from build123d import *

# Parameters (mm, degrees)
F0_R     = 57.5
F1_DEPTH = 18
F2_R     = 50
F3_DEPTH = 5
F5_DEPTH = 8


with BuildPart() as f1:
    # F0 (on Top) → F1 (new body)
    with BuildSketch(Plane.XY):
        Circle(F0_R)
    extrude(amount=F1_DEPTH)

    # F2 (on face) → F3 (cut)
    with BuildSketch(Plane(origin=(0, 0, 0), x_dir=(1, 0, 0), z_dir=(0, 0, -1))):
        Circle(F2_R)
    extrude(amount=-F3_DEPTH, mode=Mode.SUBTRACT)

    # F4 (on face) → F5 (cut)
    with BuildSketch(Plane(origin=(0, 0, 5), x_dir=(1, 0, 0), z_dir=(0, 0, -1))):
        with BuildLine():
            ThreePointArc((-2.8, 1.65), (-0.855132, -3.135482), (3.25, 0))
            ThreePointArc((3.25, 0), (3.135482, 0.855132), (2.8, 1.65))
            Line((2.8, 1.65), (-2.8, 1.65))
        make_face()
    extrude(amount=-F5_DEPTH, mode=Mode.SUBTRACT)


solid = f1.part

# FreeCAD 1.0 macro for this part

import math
import FreeCAD as App
import Part
import Sketcher

V = App.Vector

doc = App.newDocument("Part")
body = doc.addObject("PartDesign::Body", "Body")

# Sketch on XY plane
sketch1 = doc.addObject("Sketcher::SketchObject", "Sketch")
body.addObject(sketch1)
sketch1.AttachmentSupport = (doc.XY_Plane, [""])
sketch1.MapMode = "FlatFace"
sketch1.addGeometry(Part.Circle(V(0, 0, 0), V(0, 0, 1), 58), False)
sketch1.addConstraint(Sketcher.Constraint("Coincident", 0, 3, -1, 1))
sketch1.addConstraint(Sketcher.Constraint("Diameter", 0, 115.0))
pad1 = doc.addObject("PartDesign::Pad", "Pad")
body.addObject(pad1)
pad1.Profile = sketch1
pad1.Length = 18

# Sketch on XY plane
sketch2 = doc.addObject("Sketcher::SketchObject", "Sketch001")
body.addObject(sketch2)
sketch2.AttachmentSupport = (doc.XY_Plane, [""])
sketch2.MapMode = "FlatFace"
sketch2.addGeometry(Part.Circle(V(0, 0, 0), V(0, 0, 1), 50), False)
sketch2.addConstraint(Sketcher.Constraint("Coincident", 0, 3, -1, 1))
sketch2.addConstraint(Sketcher.Constraint("Diameter", 0, 100.0))
pocket1 = doc.addObject("PartDesign::Pocket", "Pocket")
body.addObject(pocket1)
pocket1.Profile = sketch2
pocket1.Length = 5
pocket1.Reversed = True

# Sketch on XY plane
sketch3 = doc.addObject("Sketcher::SketchObject", "Sketch002")
body.addObject(sketch3)
sketch3.AttachmentSupport = (doc.XY_Plane, [""])
sketch3.MapMode = "FlatFace"
sketch3.AttachmentOffset = App.Placement(V(0, 0, 5), App.Rotation())
sketch3.addGeometry(Part.ArcOfCircle(Part.Circle(V(0, 0, 0), V(0, 0, 1), 3.2), math.radians(0), math.radians(211)), False)
sketch3.addGeometry(Part.ArcOfCircle(Part.Circle(V(0, 0, 0), V(0, 0, 1), 3.3), math.radians(-31), math.radians(0)), False)
sketch3.addGeometry(Part.LineSegment(V(2.8, -1.6, 0), V(-2.8, -1.6, 0)), False)
sketch3.addConstraint(Sketcher.Constraint("Tangent", 0, 1, 1, 2))
sketch3.addConstraint(Sketcher.Constraint("Coincident", 1, 1, 2, 1))
sketch3.addConstraint(Sketcher.Constraint("Coincident", 2, 2, 0, 2))
sketch3.addConstraint(Sketcher.Constraint("Horizontal", 2))
sketch3.addConstraint(Sketcher.Constraint("Coincident", 0, 3, -1, 1))
sketch3.addConstraint(Sketcher.Constraint("PointOnObject", 0, 1, -1))
sketch3.addConstraint(Sketcher.Constraint("Radius", 0, 3.25))
sketch3.addConstraint(Sketcher.Constraint("DistanceX", 2, 2, 2, 1, 5.6))
sketch3.addConstraint(Sketcher.Constraint("DistanceX", -1, 1, 1, 1, 2.8))
pocket2 = doc.addObject("PartDesign::Pocket", "Pocket001")
body.addObject(pocket2)
pocket2.Profile = sketch3
pocket2.Length = 8
pocket2.Reversed = True

doc.recompute()
